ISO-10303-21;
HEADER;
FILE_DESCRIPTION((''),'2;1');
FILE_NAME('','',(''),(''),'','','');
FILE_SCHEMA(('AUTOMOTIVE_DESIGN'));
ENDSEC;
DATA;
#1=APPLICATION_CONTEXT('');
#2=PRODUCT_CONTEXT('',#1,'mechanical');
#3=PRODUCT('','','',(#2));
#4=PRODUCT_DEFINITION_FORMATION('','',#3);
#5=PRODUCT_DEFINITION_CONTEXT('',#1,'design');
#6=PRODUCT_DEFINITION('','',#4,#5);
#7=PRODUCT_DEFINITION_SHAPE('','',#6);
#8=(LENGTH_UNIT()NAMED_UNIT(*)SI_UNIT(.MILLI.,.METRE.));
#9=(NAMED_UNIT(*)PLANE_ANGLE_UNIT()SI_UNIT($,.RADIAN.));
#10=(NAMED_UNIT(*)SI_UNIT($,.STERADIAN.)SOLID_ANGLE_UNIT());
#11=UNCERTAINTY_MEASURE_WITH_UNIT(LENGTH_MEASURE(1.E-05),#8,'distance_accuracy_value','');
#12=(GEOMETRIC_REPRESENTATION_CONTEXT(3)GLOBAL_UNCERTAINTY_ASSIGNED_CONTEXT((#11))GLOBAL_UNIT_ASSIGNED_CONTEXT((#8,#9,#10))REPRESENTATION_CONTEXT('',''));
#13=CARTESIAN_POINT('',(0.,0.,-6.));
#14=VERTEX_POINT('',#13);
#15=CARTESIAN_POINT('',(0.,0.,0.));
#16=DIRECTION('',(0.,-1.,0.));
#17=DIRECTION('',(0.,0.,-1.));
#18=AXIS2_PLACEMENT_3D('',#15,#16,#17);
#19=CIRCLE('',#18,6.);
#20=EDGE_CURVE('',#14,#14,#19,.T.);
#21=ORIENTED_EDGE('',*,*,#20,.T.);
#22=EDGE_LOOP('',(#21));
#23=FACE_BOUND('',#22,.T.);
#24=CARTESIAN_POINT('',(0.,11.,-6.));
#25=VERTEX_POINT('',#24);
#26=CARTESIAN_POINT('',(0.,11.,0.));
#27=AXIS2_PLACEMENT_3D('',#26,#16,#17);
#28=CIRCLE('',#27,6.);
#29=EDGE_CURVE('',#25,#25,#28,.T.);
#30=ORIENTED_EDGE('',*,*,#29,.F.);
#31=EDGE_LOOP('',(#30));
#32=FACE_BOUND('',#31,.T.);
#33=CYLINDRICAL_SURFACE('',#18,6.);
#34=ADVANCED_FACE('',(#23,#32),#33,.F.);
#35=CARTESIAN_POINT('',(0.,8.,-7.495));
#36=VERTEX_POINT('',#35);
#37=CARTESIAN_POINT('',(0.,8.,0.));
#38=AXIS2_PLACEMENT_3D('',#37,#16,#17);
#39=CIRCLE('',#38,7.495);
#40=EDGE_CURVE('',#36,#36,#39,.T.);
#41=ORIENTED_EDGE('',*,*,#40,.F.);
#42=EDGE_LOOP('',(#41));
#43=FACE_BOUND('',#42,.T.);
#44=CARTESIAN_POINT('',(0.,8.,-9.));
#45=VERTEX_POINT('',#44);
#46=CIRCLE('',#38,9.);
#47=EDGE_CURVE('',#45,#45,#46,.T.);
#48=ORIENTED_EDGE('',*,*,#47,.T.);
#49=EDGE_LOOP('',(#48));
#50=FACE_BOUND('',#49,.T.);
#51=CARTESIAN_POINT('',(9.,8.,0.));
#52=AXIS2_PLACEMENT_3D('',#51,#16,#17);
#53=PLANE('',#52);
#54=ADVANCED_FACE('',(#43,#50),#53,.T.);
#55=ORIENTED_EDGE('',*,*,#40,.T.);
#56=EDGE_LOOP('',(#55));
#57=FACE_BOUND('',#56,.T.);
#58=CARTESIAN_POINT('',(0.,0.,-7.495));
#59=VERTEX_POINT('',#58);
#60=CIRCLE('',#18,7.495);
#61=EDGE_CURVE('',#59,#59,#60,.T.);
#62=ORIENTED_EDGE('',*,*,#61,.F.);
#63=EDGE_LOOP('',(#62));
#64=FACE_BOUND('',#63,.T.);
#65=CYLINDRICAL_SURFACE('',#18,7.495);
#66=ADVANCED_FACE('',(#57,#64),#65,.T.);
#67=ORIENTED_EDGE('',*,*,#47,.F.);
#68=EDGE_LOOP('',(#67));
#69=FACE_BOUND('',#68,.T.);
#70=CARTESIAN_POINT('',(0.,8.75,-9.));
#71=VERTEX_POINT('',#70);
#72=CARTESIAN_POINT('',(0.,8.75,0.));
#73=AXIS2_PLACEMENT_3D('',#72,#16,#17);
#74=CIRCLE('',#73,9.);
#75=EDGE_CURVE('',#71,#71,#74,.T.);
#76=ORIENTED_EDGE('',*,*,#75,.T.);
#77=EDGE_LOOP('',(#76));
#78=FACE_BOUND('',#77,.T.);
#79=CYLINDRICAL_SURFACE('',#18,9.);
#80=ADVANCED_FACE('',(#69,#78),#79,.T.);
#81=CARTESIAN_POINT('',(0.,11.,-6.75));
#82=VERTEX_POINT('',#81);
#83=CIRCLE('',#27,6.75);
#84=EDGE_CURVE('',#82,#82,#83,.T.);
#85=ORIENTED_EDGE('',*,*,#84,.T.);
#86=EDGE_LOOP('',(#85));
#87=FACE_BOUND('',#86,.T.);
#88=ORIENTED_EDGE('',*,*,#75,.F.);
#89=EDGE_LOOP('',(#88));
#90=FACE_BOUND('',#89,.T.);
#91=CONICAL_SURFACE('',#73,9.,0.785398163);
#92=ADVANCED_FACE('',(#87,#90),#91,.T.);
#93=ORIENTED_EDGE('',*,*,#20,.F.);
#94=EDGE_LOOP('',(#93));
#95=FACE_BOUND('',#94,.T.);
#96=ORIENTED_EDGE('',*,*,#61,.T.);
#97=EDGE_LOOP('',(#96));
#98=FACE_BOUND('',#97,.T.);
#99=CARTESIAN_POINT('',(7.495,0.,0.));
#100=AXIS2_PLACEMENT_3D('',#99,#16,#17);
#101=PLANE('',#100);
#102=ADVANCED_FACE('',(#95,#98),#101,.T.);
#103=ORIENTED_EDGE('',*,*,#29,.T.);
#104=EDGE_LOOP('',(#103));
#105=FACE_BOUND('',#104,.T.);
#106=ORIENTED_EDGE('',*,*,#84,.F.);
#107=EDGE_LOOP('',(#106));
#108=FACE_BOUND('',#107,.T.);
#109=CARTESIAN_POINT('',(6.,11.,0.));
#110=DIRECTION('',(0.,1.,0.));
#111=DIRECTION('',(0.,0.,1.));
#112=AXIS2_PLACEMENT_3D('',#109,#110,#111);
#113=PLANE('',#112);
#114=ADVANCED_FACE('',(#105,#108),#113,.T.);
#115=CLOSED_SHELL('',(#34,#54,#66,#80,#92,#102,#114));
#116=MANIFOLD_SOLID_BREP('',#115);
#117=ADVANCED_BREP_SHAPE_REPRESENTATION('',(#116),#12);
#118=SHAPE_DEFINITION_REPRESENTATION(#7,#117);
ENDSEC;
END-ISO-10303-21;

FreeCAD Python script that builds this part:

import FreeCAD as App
import Part
import Sketcher
from FreeCAD import Vector
Q = App.Units.Quantity


def add_polygon(sketch, points):
    """Adds a closed chain of lines whose ends are joined by coincident constraints."""
    first, n = sketch.GeometryCount, len(points)
    for a, b in zip(points, points[1:] + points[:1]):
        sketch.addGeometry(Part.LineSegment(App.Vector(*a, 0), App.Vector(*b, 0)), False)
    for i in range(n):
        sketch.addConstraint(Sketcher.Constraint("Coincident", first + i, 2, first + (i + 1) % n, 1))

doc = App.newDocument("Part")
body = doc.addObject("PartDesign::Body", "Body")

# Sketch on XY plane
sketch1 = doc.addObject("Sketcher::SketchObject", "Sketch")
body.addObject(sketch1)
sketch1.AttachmentSupport = (doc.XY_Plane, [""])
sketch1.MapMode = "FlatFace"
add_polygon(sketch1, [(6, 11), (6, 0), (7.5, 0), (7.5, 8), (9, 8), (9, 8.8), (6.8, 11)])  # lines 0-6
sketch1.addConstraint([
    Sketcher.Constraint("Vertical", 0),
    Sketcher.Constraint("Horizontal", 1),
    Sketcher.Constraint("Vertical", 2),
    Sketcher.Constraint("Horizontal", 3),
    Sketcher.Constraint("Vertical", 4),
    Sketcher.Constraint("Horizontal", 6),
    Sketcher.Constraint("PointOnObject", 0, 2, -1),
    Sketcher.Constraint("Equal", 6, 4),
    Sketcher.Constraint("DistanceY", 0, 2, 0, 1, 11.0),
    Sketcher.Constraint("DistanceY", 2, 1, 2, 2, 8.0),
    Sketcher.Constraint("Angle", 5, Q("135 deg")),
    Sketcher.Constraint("DistanceX", -1, 1, 0, 2, 6.0),
    Sketcher.Constraint("DistanceX", 6, 2, 6, 1, 0.75),
    Sketcher.Constraint("DistanceX", 1, 1, 1, 2, 1.495),
])
revolution = doc.addObject("PartDesign::Revolution", "Revolution")
body.addObject(revolution)
revolution.Profile = sketch1
revolution.ReferenceAxis = (sketch1, ["V_Axis"])
revolution.Angle = 360

doc.recompute()
